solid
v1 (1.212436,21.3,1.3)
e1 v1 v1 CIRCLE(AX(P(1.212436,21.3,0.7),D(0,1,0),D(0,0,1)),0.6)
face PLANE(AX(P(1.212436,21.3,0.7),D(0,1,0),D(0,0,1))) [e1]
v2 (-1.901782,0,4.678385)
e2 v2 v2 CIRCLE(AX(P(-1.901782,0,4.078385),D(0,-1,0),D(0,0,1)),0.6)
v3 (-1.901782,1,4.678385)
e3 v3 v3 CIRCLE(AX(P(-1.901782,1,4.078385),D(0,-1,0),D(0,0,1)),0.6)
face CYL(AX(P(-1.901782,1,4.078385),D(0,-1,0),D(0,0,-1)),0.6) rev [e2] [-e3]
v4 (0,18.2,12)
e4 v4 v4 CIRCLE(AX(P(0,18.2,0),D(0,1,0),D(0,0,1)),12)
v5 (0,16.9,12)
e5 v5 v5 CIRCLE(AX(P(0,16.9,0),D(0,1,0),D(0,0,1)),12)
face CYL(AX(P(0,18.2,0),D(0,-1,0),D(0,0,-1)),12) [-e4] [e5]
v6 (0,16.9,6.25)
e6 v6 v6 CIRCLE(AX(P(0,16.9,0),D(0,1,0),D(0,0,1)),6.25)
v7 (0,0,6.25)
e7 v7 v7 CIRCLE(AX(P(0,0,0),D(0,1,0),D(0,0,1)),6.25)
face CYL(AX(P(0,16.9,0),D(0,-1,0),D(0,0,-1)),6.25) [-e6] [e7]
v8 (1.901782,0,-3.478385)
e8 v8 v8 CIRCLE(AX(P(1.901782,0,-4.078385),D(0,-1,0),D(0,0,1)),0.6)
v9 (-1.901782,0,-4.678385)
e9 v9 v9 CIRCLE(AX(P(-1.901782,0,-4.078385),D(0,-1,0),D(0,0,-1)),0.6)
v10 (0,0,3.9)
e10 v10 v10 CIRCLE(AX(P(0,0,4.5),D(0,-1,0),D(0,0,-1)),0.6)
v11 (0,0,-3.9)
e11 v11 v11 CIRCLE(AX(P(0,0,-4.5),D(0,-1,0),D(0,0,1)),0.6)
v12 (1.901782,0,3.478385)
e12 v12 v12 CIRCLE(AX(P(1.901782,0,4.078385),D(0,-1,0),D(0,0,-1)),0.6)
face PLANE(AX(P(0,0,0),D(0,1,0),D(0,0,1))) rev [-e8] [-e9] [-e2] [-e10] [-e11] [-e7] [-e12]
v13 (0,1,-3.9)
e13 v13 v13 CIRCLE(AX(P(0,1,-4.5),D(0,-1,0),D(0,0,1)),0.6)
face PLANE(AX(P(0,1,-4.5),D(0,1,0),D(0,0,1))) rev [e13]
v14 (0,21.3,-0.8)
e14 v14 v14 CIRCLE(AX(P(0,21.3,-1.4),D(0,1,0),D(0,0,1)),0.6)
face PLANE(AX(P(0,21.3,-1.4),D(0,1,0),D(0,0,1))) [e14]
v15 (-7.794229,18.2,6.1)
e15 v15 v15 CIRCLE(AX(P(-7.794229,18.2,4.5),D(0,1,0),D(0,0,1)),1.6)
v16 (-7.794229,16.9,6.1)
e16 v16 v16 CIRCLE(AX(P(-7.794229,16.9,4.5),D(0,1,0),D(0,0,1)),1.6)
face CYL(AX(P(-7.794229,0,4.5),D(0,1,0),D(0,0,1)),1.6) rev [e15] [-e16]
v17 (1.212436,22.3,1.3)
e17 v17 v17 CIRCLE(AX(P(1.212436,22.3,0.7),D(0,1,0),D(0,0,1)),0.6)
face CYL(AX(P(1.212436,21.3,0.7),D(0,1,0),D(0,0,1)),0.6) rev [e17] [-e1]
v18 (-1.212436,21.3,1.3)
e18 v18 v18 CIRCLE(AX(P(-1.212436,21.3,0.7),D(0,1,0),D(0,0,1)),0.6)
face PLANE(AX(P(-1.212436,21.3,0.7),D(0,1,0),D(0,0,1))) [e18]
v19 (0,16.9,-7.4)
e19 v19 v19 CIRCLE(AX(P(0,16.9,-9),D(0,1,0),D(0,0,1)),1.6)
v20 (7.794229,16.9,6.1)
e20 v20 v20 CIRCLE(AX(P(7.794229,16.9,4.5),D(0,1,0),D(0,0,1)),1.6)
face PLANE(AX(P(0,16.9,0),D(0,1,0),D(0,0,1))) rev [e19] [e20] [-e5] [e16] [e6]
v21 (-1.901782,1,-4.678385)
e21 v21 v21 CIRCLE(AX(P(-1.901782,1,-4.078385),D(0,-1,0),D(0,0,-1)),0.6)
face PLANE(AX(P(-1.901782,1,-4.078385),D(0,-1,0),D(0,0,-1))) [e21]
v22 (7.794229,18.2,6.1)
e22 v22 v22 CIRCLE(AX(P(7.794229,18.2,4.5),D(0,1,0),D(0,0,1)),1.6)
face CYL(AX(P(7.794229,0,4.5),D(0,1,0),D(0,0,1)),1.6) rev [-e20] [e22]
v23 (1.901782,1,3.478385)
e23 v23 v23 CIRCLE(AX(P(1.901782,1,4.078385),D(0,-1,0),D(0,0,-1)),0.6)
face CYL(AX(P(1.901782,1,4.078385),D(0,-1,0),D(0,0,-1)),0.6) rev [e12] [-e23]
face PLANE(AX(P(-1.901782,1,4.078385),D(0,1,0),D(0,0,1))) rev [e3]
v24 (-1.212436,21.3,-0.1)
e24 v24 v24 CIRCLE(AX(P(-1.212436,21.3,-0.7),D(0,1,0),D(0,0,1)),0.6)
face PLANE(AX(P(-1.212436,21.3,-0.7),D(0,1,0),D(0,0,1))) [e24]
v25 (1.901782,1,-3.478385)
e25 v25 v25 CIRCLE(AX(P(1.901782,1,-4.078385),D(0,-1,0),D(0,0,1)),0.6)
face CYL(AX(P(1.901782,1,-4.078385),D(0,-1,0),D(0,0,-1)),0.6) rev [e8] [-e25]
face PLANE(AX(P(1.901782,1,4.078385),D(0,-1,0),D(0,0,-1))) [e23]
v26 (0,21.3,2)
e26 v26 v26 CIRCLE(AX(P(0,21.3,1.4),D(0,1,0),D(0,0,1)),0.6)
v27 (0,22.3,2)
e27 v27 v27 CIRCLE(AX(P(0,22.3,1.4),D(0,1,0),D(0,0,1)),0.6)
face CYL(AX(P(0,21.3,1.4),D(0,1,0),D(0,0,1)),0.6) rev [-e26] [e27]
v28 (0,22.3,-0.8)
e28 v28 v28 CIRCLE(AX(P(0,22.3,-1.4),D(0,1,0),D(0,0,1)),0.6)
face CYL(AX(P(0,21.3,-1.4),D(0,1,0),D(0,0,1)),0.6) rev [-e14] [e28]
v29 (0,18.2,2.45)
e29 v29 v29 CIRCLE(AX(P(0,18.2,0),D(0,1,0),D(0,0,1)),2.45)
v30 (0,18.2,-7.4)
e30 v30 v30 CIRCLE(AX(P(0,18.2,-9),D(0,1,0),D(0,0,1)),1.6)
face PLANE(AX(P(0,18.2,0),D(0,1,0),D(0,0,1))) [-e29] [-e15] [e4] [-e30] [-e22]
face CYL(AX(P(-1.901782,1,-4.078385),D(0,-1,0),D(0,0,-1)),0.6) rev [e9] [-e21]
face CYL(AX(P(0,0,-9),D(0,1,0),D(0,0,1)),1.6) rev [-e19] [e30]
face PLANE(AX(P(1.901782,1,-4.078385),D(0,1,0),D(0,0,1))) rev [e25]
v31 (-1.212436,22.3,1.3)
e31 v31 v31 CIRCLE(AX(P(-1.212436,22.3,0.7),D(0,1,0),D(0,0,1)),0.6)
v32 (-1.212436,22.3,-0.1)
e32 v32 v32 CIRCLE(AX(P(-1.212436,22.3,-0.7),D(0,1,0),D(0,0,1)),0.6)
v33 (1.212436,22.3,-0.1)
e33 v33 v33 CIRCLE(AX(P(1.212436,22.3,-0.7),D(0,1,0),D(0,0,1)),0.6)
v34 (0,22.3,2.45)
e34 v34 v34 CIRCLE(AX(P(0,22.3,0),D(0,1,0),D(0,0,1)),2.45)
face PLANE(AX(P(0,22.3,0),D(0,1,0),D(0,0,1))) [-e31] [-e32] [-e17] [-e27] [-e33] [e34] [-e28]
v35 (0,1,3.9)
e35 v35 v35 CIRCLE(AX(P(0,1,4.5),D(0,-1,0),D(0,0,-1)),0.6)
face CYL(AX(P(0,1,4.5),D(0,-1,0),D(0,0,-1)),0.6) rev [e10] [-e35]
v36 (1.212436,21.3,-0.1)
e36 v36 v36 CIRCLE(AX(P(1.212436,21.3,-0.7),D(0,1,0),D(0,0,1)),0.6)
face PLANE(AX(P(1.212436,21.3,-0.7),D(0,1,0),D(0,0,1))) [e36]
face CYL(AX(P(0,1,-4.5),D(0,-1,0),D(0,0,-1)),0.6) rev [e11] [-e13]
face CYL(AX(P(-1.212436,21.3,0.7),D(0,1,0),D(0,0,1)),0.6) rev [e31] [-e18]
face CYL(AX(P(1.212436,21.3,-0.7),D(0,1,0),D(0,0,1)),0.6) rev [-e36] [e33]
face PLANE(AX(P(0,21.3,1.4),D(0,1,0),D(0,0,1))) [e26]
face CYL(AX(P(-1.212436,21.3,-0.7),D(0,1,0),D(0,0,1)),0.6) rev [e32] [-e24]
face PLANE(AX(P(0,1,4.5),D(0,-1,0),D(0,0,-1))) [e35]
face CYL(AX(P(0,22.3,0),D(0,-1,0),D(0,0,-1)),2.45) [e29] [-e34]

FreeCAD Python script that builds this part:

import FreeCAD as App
import Part
import Sketcher
from FreeCAD import Vector
Q = App.Units.Quantity

doc = App.newDocument("Part")
params = doc.addObject("Spreadsheet::Sheet", "Params")
for row, (alias, value) in enumerate([
    ("sketch1_diameter", "12.5 mm"),
    ("pad1_length", "16.9 mm"),
    ("sketch2_diameter", "24 mm"),
    ("pad2_length", "1.3 mm"),
    ("sketch3_diameter", "3.2 mm"),
    ("sketch4_diameter", "4.9 mm"),
    ("pad3_length", "4.1 mm"),
    ("sketch5_diameter", "1.2 mm"),
    ("pocket2_length", "1 mm"),
    ("sketch6_diameter", "1.2 mm"),
    ("pocket3_length", "1 mm"),
], start=1):
    params.set(f"A{row}", alias)
    params.set(f"B{row}", "=" + value)
    params.setAlias(f"B{row}", alias)

body = doc.addObject("PartDesign::Body", "Body")

sketch1 = doc.addObject("Sketcher::SketchObject", "Sketch")
body.addObject(sketch1)
sketch1.AttachmentSupport = (doc.XZ_Plane, [""])
sketch1.MapMode = "FlatFace"
sketch1.addGeometry(Part.Circle(Vector(0, 0, 0), Vector(0, 0, 1), 6.25), False)
sketch1.addConstraint([
    Sketcher.Constraint("Coincident", 0, 3, -1, 1),
    Sketcher.Constraint("Diameter", 0, Q("12.5 mm")),
])
sketch1.setExpression("Constraints[1]", "Params.sketch1_diameter")
pad1 = doc.addObject("PartDesign::Pad", "Pad")
body.addObject(pad1)
pad1.Profile = sketch1
pad1.setExpression("Length", "Params.pad1_length")
pad1.Reversed = True

sketch2 = doc.addObject("Sketcher::SketchObject", "Sketch001")
body.addObject(sketch2)
sketch2.AttachmentSupport = (doc.XZ_Plane, [""])
sketch2.MapMode = "FlatFace"
sketch2.AttachmentOffset = App.Placement(Vector(0, 0, -16.9), App.Rotation())
sketch2.addGeometry(Part.Circle(Vector(0, 0, 0), Vector(0, 0, 1), 12), False)
sketch2.addConstraint([
    Sketcher.Constraint("Coincident", 0, 3, -1, 1),
    Sketcher.Constraint("Diameter", 0, Q("24 mm")),
])
sketch2.setExpression("Constraints[1]", "Params.sketch2_diameter")
pad2 = doc.addObject("PartDesign::Pad", "Pad001")
body.addObject(pad2)
pad2.Profile = sketch2
pad2.setExpression("Length", "Params.pad2_length")
pad2.Reversed = True

sketch3 = doc.addObject("Sketcher::SketchObject", "Sketch002")
body.addObject(sketch3)
sketch3.AttachmentSupport = (doc.XZ_Plane, [""])
sketch3.MapMode = "FlatFace"
sketch3.AttachmentOffset = App.Placement(Vector(0, 0, -18.2), App.Rotation())
sketch3.addGeometry([
    Part.Circle(Vector(0, -9, 0), Vector(0, 0, 1), 1.6),
    Part.Circle(Vector(7.794229, 4.5, 0), Vector(0, 0, 1), 1.6),
    Part.Circle(Vector(-7.794229, 4.5, 0), Vector(0, 0, 1), 1.6),
], False)
sketch3.addConstraint([
    Sketcher.Constraint("Equal", 0, 1),
    Sketcher.Constraint("Equal", 1, 2),
    Sketcher.Constraint("Symmetric", 1, 3, 2, 3, -2),
    Sketcher.Constraint("PointOnObject", 0, 3, -2),
    Sketcher.Constraint("Diameter", 0, Q("3.2 mm")),
    Sketcher.Constraint("DistanceY", 0, 3, -1, 1, Q("9 mm")),
    Sketcher.Constraint("DistanceY", -1, 1, 1, 3, Q("4.5 mm")),
    Sketcher.Constraint("DistanceX", -1, 1, 1, 3, Q("7.794229 mm")),
])
sketch3.setExpression("Constraints[4]", "Params.sketch3_diameter")
pocket1 = doc.addObject("PartDesign::Pocket", "Pocket")
body.addObject(pocket1)
pocket1.Profile = sketch3
pocket1.Type = "ThroughAll"
pocket1.Reversed = True

sketch4 = doc.addObject("Sketcher::SketchObject", "Sketch003")
body.addObject(sketch4)
sketch4.AttachmentSupport = (doc.XZ_Plane, [""])
sketch4.MapMode = "FlatFace"
sketch4.AttachmentOffset = App.Placement(Vector(0, 0, -18.2), App.Rotation())
sketch4.addGeometry(Part.Circle(Vector(0, 0, 0), Vector(0, 0, 1), 2.45), False)
sketch4.addConstraint([
    Sketcher.Constraint("Coincident", 0, 3, -1, 1),
    Sketcher.Constraint("Diameter", 0, Q("4.9 mm")),
])
sketch4.setExpression("Constraints[1]", "Params.sketch4_diameter")
pad3 = doc.addObject("PartDesign::Pad", "Pad002")
body.addObject(pad3)
pad3.Profile = sketch4
pad3.setExpression("Length", "Params.pad3_length")
pad3.Reversed = True

sketch5 = doc.addObject("Sketcher::SketchObject", "Sketch004")
body.addObject(sketch5)
sketch5.AttachmentSupport = (doc.XZ_Plane, [""])
sketch5.MapMode = "FlatFace"
sketch5.AttachmentOffset = App.Placement(Vector(0, 0, -22.3), App.Rotation())
sketch5.addGeometry([
    Part.Circle(Vector(0, -1.4, 0), Vector(0, 0, 1), 0.6),
    Part.Circle(Vector(1.212436, -0.7, 0), Vector(0, 0, 1), 0.6),
    Part.Circle(Vector(1.212436, 0.7, 0), Vector(0, 0, 1), 0.6),
    Part.Circle(Vector(0, 1.4, 0), Vector(0, 0, 1), 0.6),
    Part.Circle(Vector(-1.212436, 0.7, 0), Vector(0, 0, 1), 0.6),
    Part.Circle(Vector(-1.212436, -0.7, 0), Vector(0, 0, 1), 0.6),
], False)
sketch5.addConstraint([
    Sketcher.Constraint("Equal", 0, 1),
    Sketcher.Constraint("Equal", 1, 2),
    Sketcher.Constraint("Equal", 2, 3),
    Sketcher.Constraint("Equal", 3, 4),
    Sketcher.Constraint("Equal", 4, 5),
    Sketcher.Constraint("Symmetric", 0, 3, 3, 3, -1, 1),
    Sketcher.Constraint("Symmetric", 1, 3, 4, 3, -1, 1),
    Sketcher.Constraint("Symmetric", 2, 3, 5, 3, -1, 1),
    Sketcher.Constraint("Symmetric", 2, 3, 4, 3, -2),
    Sketcher.Constraint("PointOnObject", 0, 3, -2),
    Sketcher.Constraint("Diameter", 0, Q("1.2 mm")),
    Sketcher.Constraint("DistanceY", 0, 3, -1, 1, Q("1.4 mm")),
    Sketcher.Constraint("DistanceY", 1, 3, -1, 1, Q("0.7 mm")),
    Sketcher.Constraint("DistanceX", 4, 3, 2, 3, Q("2.424871 mm")),
])
sketch5.setExpression("Constraints[10]", "Params.sketch5_diameter")
pocket2 = doc.addObject("PartDesign::Pocket", "Pocket001")
body.addObject(pocket2)
pocket2.Profile = sketch5
pocket2.setExpression("Length", "Params.pocket2_length")
pocket2.Reversed = True

sketch6 = doc.addObject("Sketcher::SketchObject", "Sketch005")
body.addObject(sketch6)
sketch6.AttachmentSupport = (doc.XZ_Plane, [""])
sketch6.MapMode = "FlatFace"
sketch6.addGeometry([
    Part.Circle(Vector(0, 4.5, 0), Vector(0, 0, 1), 0.6),
    Part.Circle(Vector(1.901782, 4.078385, 0), Vector(0, 0, 1), 0.6),
    Part.Circle(Vector(-1.901782, 4.078385, 0), Vector(0, 0, 1), 0.6),
    Part.Circle(Vector(-1.901782, -4.078385, 0), Vector(0, 0, 1), 0.6),
    Part.Circle(Vector(1.901782, -4.078385, 0), Vector(0, 0, 1), 0.6),
    Part.Circle(Vector(0, -4.5, 0), Vector(0, 0, 1), 0.6),
], False)
sketch6.addConstraint([
    Sketcher.Constraint("Equal", 0, 1),
    Sketcher.Constraint("Equal", 1, 2),
    Sketcher.Constraint("Equal", 2, 3),
    Sketcher.Constraint("Equal", 3, 4),
    Sketcher.Constraint("Equal", 4, 5),
    Sketcher.Constraint("Symmetric", 1, 3, 3, 3, -1, 1),
    Sketcher.Constraint("Symmetric", 2, 3, 4, 3, -1, 1),
    Sketcher.Constraint("Symmetric", 0, 3, 5, 3, -1, 1),
    Sketcher.Constraint("Symmetric", 1, 3, 2, 3, -2),
    Sketcher.Constraint("PointOnObject", 0, 3, -2),
    Sketcher.Constraint("Diameter", 0, Q("1.2 mm")),
    Sketcher.Constraint("DistanceY", 5, 3, 0, 3, Q("9 mm")),
    Sketcher.Constraint("DistanceY", 3, 3, 2, 3, Q("8.15677 mm")),
    Sketcher.Constraint("DistanceX", -1, 1, 1, 3, Q("1.901782 mm")),
])
sketch6.setExpression("Constraints[10]", "Params.sketch6_diameter")
pocket3 = doc.addObject("PartDesign::Pocket", "Pocket002")
body.addObject(pocket3)
pocket3.Profile = sketch6
pocket3.setExpression("Length", "Params.pocket3_length")

doc.recompute()
